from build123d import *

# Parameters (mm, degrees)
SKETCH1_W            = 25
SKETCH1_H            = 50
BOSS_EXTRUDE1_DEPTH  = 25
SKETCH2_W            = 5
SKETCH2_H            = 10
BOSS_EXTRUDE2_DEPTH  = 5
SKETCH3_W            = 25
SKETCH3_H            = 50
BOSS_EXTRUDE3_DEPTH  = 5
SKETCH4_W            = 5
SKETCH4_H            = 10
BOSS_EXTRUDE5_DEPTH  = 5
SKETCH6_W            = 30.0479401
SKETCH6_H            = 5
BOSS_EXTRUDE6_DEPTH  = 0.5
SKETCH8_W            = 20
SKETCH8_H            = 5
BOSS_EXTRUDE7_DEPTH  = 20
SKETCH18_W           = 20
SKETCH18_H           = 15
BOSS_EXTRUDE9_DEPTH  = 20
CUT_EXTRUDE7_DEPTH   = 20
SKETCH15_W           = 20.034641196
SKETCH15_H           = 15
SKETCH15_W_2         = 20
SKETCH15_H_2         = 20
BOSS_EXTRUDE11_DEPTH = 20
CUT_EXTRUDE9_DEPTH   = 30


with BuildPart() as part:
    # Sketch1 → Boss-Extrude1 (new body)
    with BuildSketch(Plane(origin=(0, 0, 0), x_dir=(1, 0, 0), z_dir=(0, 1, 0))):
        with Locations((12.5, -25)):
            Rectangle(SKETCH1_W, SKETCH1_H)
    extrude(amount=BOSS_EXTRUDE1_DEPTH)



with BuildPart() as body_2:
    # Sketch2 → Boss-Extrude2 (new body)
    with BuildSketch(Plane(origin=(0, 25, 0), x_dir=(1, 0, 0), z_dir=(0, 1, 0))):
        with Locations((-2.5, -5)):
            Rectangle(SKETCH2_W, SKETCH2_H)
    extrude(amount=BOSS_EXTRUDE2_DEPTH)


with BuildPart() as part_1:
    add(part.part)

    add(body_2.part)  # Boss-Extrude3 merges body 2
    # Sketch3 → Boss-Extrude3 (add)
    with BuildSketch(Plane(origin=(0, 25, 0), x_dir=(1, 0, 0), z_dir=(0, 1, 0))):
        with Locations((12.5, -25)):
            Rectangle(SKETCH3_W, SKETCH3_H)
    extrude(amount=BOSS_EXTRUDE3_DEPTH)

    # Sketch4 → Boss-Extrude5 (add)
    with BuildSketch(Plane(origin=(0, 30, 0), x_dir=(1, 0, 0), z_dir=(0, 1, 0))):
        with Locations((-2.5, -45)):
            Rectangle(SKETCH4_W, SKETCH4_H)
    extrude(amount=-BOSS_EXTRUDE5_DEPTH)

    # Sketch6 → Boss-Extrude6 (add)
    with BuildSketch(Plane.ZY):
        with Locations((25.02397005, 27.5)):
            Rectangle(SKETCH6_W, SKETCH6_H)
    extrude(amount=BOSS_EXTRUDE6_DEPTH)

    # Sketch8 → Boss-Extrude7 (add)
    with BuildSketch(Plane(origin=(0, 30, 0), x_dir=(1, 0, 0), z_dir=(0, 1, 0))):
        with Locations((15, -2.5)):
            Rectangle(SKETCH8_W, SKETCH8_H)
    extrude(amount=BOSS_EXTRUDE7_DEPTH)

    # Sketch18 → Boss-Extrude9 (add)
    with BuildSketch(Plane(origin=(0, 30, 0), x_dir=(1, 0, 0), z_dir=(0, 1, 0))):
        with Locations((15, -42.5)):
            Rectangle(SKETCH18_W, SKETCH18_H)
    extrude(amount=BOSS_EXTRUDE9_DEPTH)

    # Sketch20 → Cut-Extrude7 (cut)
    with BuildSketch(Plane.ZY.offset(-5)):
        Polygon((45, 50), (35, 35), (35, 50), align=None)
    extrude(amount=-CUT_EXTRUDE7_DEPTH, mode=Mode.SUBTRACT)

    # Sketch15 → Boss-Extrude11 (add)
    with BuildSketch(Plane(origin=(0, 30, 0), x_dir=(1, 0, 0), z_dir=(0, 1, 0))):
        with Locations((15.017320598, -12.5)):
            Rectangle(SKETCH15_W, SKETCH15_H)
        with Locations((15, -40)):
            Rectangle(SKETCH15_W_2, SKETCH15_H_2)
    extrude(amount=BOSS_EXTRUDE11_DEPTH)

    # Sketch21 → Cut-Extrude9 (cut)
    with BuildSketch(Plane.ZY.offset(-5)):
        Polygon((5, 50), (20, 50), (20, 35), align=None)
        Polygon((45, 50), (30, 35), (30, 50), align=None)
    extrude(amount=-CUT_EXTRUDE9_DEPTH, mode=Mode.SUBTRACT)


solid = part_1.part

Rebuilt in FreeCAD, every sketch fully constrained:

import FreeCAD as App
import Part
import Sketcher
from FreeCAD import Vector

doc = App.newDocument("Part")
params = doc.addObject("Spreadsheet::Sheet", "Params")
for row, (alias, value) in enumerate([
    ("sketch1_width", "25 mm"),
    ("sketch1_height", "50 mm"),
    ("pad1_length", "25 mm"),
    ("sketch2_width", "5 mm"),
    ("sketch2_height", "10 mm"),
    ("pad2_length", "5 mm"),
    ("sketch3_width", "25 mm"),
    ("sketch3_height", "50 mm"),
    ("pad3_length", "5 mm"),
    ("sketch4_width", "5 mm"),
    ("sketch4_height", "10 mm"),
    ("pad4_length", "5 mm"),
    ("sketch5_width", "5 mm"),
    ("pad5_length", "0.5 mm"),
    ("sketch6_width", "20 mm"),
    ("sketch6_height", "5 mm"),
    ("pad6_length", "20 mm"),
    ("sketch7_width", "20 mm"),
    ("sketch7_height", "15 mm"),
    ("pad7_length", "20 mm"),
    ("sketch8_width", "15 mm"),
    ("sketch8_height", "10 mm"),
    ("pocket1_length", "20 mm"),
    ("sketch9_width", "20 mm"),
    ("sketch9_height", "15 mm"),
    ("pad8_length", "20 mm"),
    ("sketch10_width", "15 mm"),
    ("pocket2_length", "30 mm"),
], start=1):
    params.set(f"A{row}", alias)
    params.set(f"B{row}", "=" + value)
    params.setAlias(f"B{row}", alias)

body = doc.addObject("PartDesign::Body", "Body")

sketch1 = body.newObject("Sketcher::SketchObject", "Sketch")
sketch1.AttachmentSupport = (doc.getObject("XZ_Plane"), [""])
sketch1.MapMode = "FlatFace"
sketch1.addGeometry([
    Part.LineSegment(Vector(0, 0, 0), Vector(0, 50, 0)),
    Part.LineSegment(Vector(0, 50, 0), Vector(25, 50, 0)),
    Part.LineSegment(Vector(25, 50, 0), Vector(25, 0, 0)),
    Part.LineSegment(Vector(25, 0, 0), Vector(0, 0, 0)),
], False)
sketch1.addConstraint([
    Sketcher.Constraint("Coincident", 0, 2, 1, 1),
    Sketcher.Constraint("Coincident", 1, 2, 2, 1),
    Sketcher.Constraint("Coincident", 2, 2, 3, 1),
    Sketcher.Constraint("Coincident", 3, 2, 0, 1),
    Sketcher.Constraint("Vertical", 0),
    Sketcher.Constraint("Horizontal", 1),
    Sketcher.Constraint("Vertical", 2),
    Sketcher.Constraint("Horizontal", 3),
    Sketcher.Constraint("Coincident", 3, 2, -1, 1),
    Sketcher.Constraint("DistanceX", 1, 1, 1, 2, 25.0),
    Sketcher.Constraint("DistanceY", 0, 1, 0, 2, 50.0),
])
sketch1.setExpression("Constraints[9]", "Params.sketch1_width")
sketch1.setExpression("Constraints[10]", "Params.sketch1_height")
pad1 = body.newObject("PartDesign::Pad", "Pad")
pad1.Profile = sketch1
pad1.setExpression("Length", "Params.pad1_length")
pad1.Reversed = True
body2 = doc.addObject("PartDesign::Body", "Body001")

sketch2 = body2.newObject("Sketcher::SketchObject", "Sketch001")
sketch2.AttachmentSupport = (doc.getObject("XZ_Plane001"), [""])
sketch2.MapMode = "FlatFace"
sketch2.AttachmentOffset = App.Placement(Vector(0, 0, -25), App.Rotation())
sketch2.addGeometry([
    Part.LineSegment(Vector(-5, 0, 0), Vector(-5, 10, 0)),
    Part.LineSegment(Vector(-5, 10, 0), Vector(0, 10, 0)),
    Part.LineSegment(Vector(0, 10, 0), Vector(0, 0, 0)),
    Part.LineSegment(Vector(0, 0, 0), Vector(-5, 0, 0)),
], False)
sketch2.addConstraint([
    Sketcher.Constraint("Coincident", 0, 2, 1, 1),
    Sketcher.Constraint("Coincident", 1, 2, 2, 1),
    Sketcher.Constraint("Coincident", 2, 2, 3, 1),
    Sketcher.Constraint("Coincident", 3, 2, 0, 1),
    Sketcher.Constraint("Vertical", 0),
    Sketcher.Constraint("Horizontal", 1),
    Sketcher.Constraint("Vertical", 2),
    Sketcher.Constraint("Horizontal", 3),
    Sketcher.Constraint("Coincident", 2, 2, -1, 1),
    Sketcher.Constraint("DistanceX", 1, 1, 1, 2, 5.0),
    Sketcher.Constraint("DistanceY", 0, 1, 0, 2, 10.0),
])
sketch2.setExpression("Constraints[9]", "Params.sketch2_width")
sketch2.setExpression("Constraints[10]", "Params.sketch2_height")
pad2 = body2.newObject("PartDesign::Pad", "Pad001")
pad2.Profile = sketch2
pad2.setExpression("Length", "Params.pad2_length")
pad2.Reversed = True
body.AllowCompound = True
doc.recompute()

boolean = body.newObject("PartDesign::Boolean", "Boolean")
boolean.Type = "Fuse"
boolean.addObjects([body2])

sketch3 = body.newObject("Sketcher::SketchObject", "Sketch002")
sketch3.AttachmentSupport = (doc.getObject("XZ_Plane"), [""])
sketch3.MapMode = "FlatFace"
sketch3.AttachmentOffset = App.Placement(Vector(0, 0, -25), App.Rotation())
sketch3.addGeometry([
    Part.LineSegment(Vector(0, 0, 0), Vector(0, 50, 0)),
    Part.LineSegment(Vector(0, 50, 0), Vector(25, 50, 0)),
    Part.LineSegment(Vector(25, 50, 0), Vector(25, 0, 0)),
    Part.LineSegment(Vector(25, 0, 0), Vector(0, 0, 0)),
], False)
sketch3.addConstraint([
    Sketcher.Constraint("Coincident", 0, 2, 1, 1),
    Sketcher.Constraint("Coincident", 1, 2, 2, 1),
    Sketcher.Constraint("Coincident", 2, 2, 3, 1),
    Sketcher.Constraint("Coincident", 3, 2, 0, 1),
    Sketcher.Constraint("Vertical", 0),
    Sketcher.Constraint("Horizontal", 1),
    Sketcher.Constraint("Vertical", 2),
    Sketcher.Constraint("Horizontal", 3),
    Sketcher.Constraint("Coincident", 3, 2, -1, 1),
    Sketcher.Constraint("DistanceX", 1, 1, 1, 2, 25.0),
    Sketcher.Constraint("DistanceY", 0, 1, 0, 2, 50.0),
])
sketch3.setExpression("Constraints[9]", "Params.sketch3_width")
sketch3.setExpression("Constraints[10]", "Params.sketch3_height")
pad3 = body.newObject("PartDesign::Pad", "Pad002")
pad3.Profile = sketch3
pad3.setExpression("Length", "Params.pad3_length")
pad3.Reversed = True

sketch4 = body.newObject("Sketcher::SketchObject", "Sketch003")
sketch4.AttachmentSupport = (doc.getObject("XZ_Plane"), [""])
sketch4.MapMode = "FlatFace"
sketch4.AttachmentOffset = App.Placement(Vector(0, 0, -30), App.Rotation())
sketch4.addGeometry([
    Part.LineSegment(Vector(-5, 40, 0), Vector(-5, 50, 0)),
    Part.LineSegment(Vector(-5, 50, 0), Vector(0, 50, 0)),
    Part.LineSegment(Vector(0, 50, 0), Vector(0, 40, 0)),
    Part.LineSegment(Vector(0, 40, 0), Vector(-5, 40, 0)),
], False)
sketch4.addConstraint([
    Sketcher.Constraint("Coincident", 0, 2, 1, 1),
    Sketcher.Constraint("Coincident", 1, 2, 2, 1),
    Sketcher.Constraint("Coincident", 2, 2, 3, 1),
    Sketcher.Constraint("Coincident", 3, 2, 0, 1),
    Sketcher.Constraint("Vertical", 0),
    Sketcher.Constraint("Horizontal", 1),
    Sketcher.Constraint("Vertical", 2),
    Sketcher.Constraint("Horizontal", 3),
    Sketcher.Constraint("PointOnObject", 1, 2, -2),
    Sketcher.Constraint("DistanceX", 1, 1, 1, 2, 5.0),
    Sketcher.Constraint("DistanceY", 0, 1, 0, 2, 10.0),
    Sketcher.Constraint("DistanceY", -1, 1, 0, 2, 50.0),
])
sketch4.setExpression("Constraints[9]", "Params.sketch4_width")
sketch4.setExpression("Constraints[10]", "Params.sketch4_height")
pad4 = body.newObject("PartDesign::Pad", "Pad003")
pad4.Profile = sketch4
pad4.setExpression("Length", "Params.pad4_length")

sketch5 = body.newObject("Sketcher::SketchObject", "Sketch004")
sketch5.AttachmentSupport = (doc.getObject("YZ_Plane"), [""])
sketch5.MapMode = "FlatFace"
sketch5.addGeometry([
    Part.LineSegment(Vector(30, 10, 0), Vector(25, 10, 0)),
    Part.LineSegment(Vector(25, 10, 0), Vector(25, 40, 0)),
    Part.LineSegment(Vector(25, 40, 0), Vector(30, 40, 0)),
    Part.LineSegment(Vector(30, 40, 0), Vector(30, 10, 0)),
], False)
sketch5.addConstraint([
    Sketcher.Constraint("Coincident", 0, 2, 1, 1),
    Sketcher.Constraint("Coincident", 1, 2, 2, 1),
    Sketcher.Constraint("Coincident", 2, 2, 3, 1),
    Sketcher.Constraint("Coincident", 3, 2, 0, 1),
    Sketcher.Constraint("Horizontal", 0),
    Sketcher.Constraint("Vertical", 1),
    Sketcher.Constraint("Horizontal", 2),
    Sketcher.Constraint("Vertical", 3),
    Sketcher.Constraint("DistanceX", 0, 2, 0, 1, 5.0),
    Sketcher.Constraint("DistanceX", -1, 1, 0, 2, 25.0),
    Sketcher.Constraint("DistanceY", -1, 1, 0, 2, 10.0),
    Sketcher.Constraint("DistanceY", 1, 1, 1, 2, 30.04794),
])
sketch5.setExpression("Constraints[8]", "Params.sketch5_width")
pad5 = body.newObject("PartDesign::Pad", "Pad004")
pad5.Profile = sketch5
pad5.setExpression("Length", "Params.pad5_length")
pad5.Reversed = True

sketch6 = body.newObject("Sketcher::SketchObject", "Sketch005")
sketch6.AttachmentSupport = (doc.getObject("XZ_Plane"), [""])
sketch6.MapMode = "FlatFace"
sketch6.AttachmentOffset = App.Placement(Vector(0, 0, -30), App.Rotation())
sketch6.addGeometry([
    Part.LineSegment(Vector(5, 0, 0), Vector(5, 5, 0)),
    Part.LineSegment(Vector(5, 5, 0), Vector(25, 5, 0)),
    Part.LineSegment(Vector(25, 5, 0), Vector(25, 0, 0)),
    Part.LineSegment(Vector(25, 0, 0), Vector(5, 0, 0)),
], False)
sketch6.addConstraint([
    Sketcher.Constraint("Coincident", 0, 2, 1, 1),
    Sketcher.Constraint("Coincident", 1, 2, 2, 1),
    Sketcher.Constraint("Coincident", 2, 2, 3, 1),
    Sketcher.Constraint("Coincident", 3, 2, 0, 1),
    Sketcher.Constraint("Vertical", 0),
    Sketcher.Constraint("Horizontal", 1),
    Sketcher.Constraint("Vertical", 2),
    Sketcher.Constraint("Horizontal", 3),
    Sketcher.Constraint("PointOnObject", 2, 2, -1),
    Sketcher.Constraint("DistanceX", 1, 1, 1, 2, 20.0),
    Sketcher.Constraint("DistanceY", 0, 1, 0, 2, 5.0),
    Sketcher.Constraint("DistanceX", -1, 1, 0, 2, 5.0),
])
sketch6.setExpression("Constraints[9]", "Params.sketch6_width")
sketch6.setExpression("Constraints[10]", "Params.sketch6_height")
pad6 = body.newObject("PartDesign::Pad", "Pad005")
pad6.Profile = sketch6
pad6.setExpression("Length", "Params.pad6_length")
pad6.Reversed = True

sketch7 = body.newObject("Sketcher::SketchObject", "Sketch006")
sketch7.AttachmentSupport = (doc.getObject("XZ_Plane"), [""])
sketch7.MapMode = "FlatFace"
sketch7.AttachmentOffset = App.Placement(Vector(0, 0, -30), App.Rotation())
sketch7.addGeometry([
    Part.LineSegment(Vector(5, 35, 0), Vector(5, 50, 0)),
    Part.LineSegment(Vector(5, 50, 0), Vector(25, 50, 0)),
    Part.LineSegment(Vector(25, 50, 0), Vector(25, 35, 0)),
    Part.LineSegment(Vector(25, 35, 0), Vector(5, 35, 0)),
], False)
sketch7.addConstraint([
    Sketcher.Constraint("Coincident", 0, 2, 1, 1),
    Sketcher.Constraint("Coincident", 1, 2, 2, 1),
    Sketcher.Constraint("Coincident", 2, 2, 3, 1),
    Sketcher.Constraint("Coincident", 3, 2, 0, 1),
    Sketcher.Constraint("Vertical", 0),
    Sketcher.Constraint("Horizontal", 1),
    Sketcher.Constraint("Vertical", 2),
    Sketcher.Constraint("Horizontal", 3),
    Sketcher.Constraint("DistanceX", 1, 1, 1, 2, 20.0),
    Sketcher.Constraint("DistanceY", 0, 1, 0, 2, 15.0),
    Sketcher.Constraint("DistanceX", -1, 1, 0, 2, 5.0),
    Sketcher.Constraint("DistanceY", -1, 1, 0, 2, 50.0),
])
sketch7.setExpression("Constraints[8]", "Params.sketch7_width")
sketch7.setExpression("Constraints[9]", "Params.sketch7_height")
pad7 = body.newObject("PartDesign::Pad", "Pad006")
pad7.Profile = sketch7
pad7.setExpression("Length", "Params.pad7_length")
pad7.Reversed = True

sketch8 = body.newObject("Sketcher::SketchObject", "Sketch007")
sketch8.AttachmentSupport = (doc.getObject("YZ_Plane"), [""])
sketch8.MapMode = "FlatFace"
sketch8.AttachmentOffset = App.Placement(Vector(0, 0, 5), App.Rotation())
sketch8.addGeometry([
    Part.LineSegment(Vector(35, 35, 0), Vector(50, 45, 0)),
    Part.LineSegment(Vector(50, 45, 0), Vector(50, 35, 0)),
    Part.LineSegment(Vector(50, 35, 0), Vector(35, 35, 0)),
], False)
sketch8.addConstraint([
    Sketcher.Constraint("Coincident", 0, 2, 1, 1),
    Sketcher.Constraint("Coincident", 1, 2, 2, 1),
    Sketcher.Constraint("Coincident", 2, 2, 0, 1),
    Sketcher.Constraint("Vertical", 1),
    Sketcher.Constraint("Horizontal", 2),
    Sketcher.Constraint("DistanceX", 2, 2, 2, 1, 15.0),
    Sketcher.Constraint("DistanceY", 1, 2, 1, 1, 10.0),
    Sketcher.Constraint("DistanceX", -1, 1, 0, 2, 50.0),
    Sketcher.Constraint("DistanceY", -1, 1, 0, 2, 45.0),
])
sketch8.setExpression("Constraints[5]", "Params.sketch8_width")
sketch8.setExpression("Constraints[6]", "Params.sketch8_height")
pocket1 = body.newObject("PartDesign::Pocket", "Pocket")
pocket1.Profile = sketch8
pocket1.setExpression("Length", "Params.pocket1_length")
pocket1.Reversed = True

sketch9 = body.newObject("Sketcher::SketchObject", "Sketch008")
sketch9.AttachmentSupport = (doc.getObject("XZ_Plane"), [""])
sketch9.MapMode = "FlatFace"
sketch9.AttachmentOffset = App.Placement(Vector(0, 0, -30), App.Rotation())
sketch9.addGeometry([
    Part.LineSegment(Vector(5, 5, 0), Vector(5, 20, 0)),
    Part.LineSegment(Vector(5, 20, 0), Vector(25, 20, 0)),
    Part.LineSegment(Vector(25, 20, 0), Vector(25, 5, 0)),
    Part.LineSegment(Vector(25, 5, 0), Vector(5, 5, 0)),
    Part.LineSegment(Vector(5, 30, 0), Vector(5, 50, 0)),
    Part.LineSegment(Vector(5, 50, 0), Vector(25, 50, 0)),
    Part.LineSegment(Vector(25, 50, 0), Vector(25, 30, 0)),
    Part.LineSegment(Vector(25, 30, 0), Vector(5, 30, 0)),
], False)
sketch9.addConstraint([
    Sketcher.Constraint("Coincident", 0, 2, 1, 1),
    Sketcher.Constraint("Coincident", 1, 2, 2, 1),
    Sketcher.Constraint("Coincident", 2, 2, 3, 1),
    Sketcher.Constraint("Coincident", 3, 2, 0, 1),
    Sketcher.Constraint("Coincident", 4, 2, 5, 1),
    Sketcher.Constraint("Coincident", 5, 2, 6, 1),
    Sketcher.Constraint("Coincident", 6, 2, 7, 1),
    Sketcher.Constraint("Coincident", 7, 2, 4, 1),
    Sketcher.Constraint("Vertical", 0),
    Sketcher.Constraint("Horizontal", 1),
    Sketcher.Constraint("Vertical", 2),
    Sketcher.Constraint("Horizontal", 3),
    Sketcher.Constraint("Vertical", 4),
    Sketcher.Constraint("Horizontal", 5),
    Sketcher.Constraint("Vertical", 6),
    Sketcher.Constraint("Horizontal", 7),
    Sketcher.Constraint("Vertical", 3, 2, 4, 2),
    Sketcher.Constraint("Equal", 7, 4),
    Sketcher.Constraint("DistanceX", 5, 1, 5, 2, 20.0),
    Sketcher.Constraint("DistanceY", 0, 1, 0, 2, 15.0),
    Sketcher.Constraint("DistanceX", -1, 1, 0, 2, 5.0),
    Sketcher.Constraint("DistanceY", -1, 1, 0, 2, 20.0),
    Sketcher.Constraint("DistanceY", -1, 1, 4, 2, 50.0),
    Sketcher.Constraint("DistanceX", 1, 1, 1, 2, 20.034641),
])
sketch9.setExpression("Constraints[18]", "Params.sketch9_width")
sketch9.setExpression("Constraints[19]", "Params.sketch9_height")
pad8 = body.newObject("PartDesign::Pad", "Pad007")
pad8.Profile = sketch9
pad8.setExpression("Length", "Params.pad8_length")
pad8.Reversed = True

sketch10 = body.newObject("Sketcher::SketchObject", "Sketch009")
sketch10.AttachmentSupport = (doc.getObject("YZ_Plane"), [""])
sketch10.MapMode = "FlatFace"
sketch10.AttachmentOffset = App.Placement(Vector(0, 0, 5), App.Rotation())
sketch10.addGeometry([
    Part.LineSegment(Vector(50, 20, 0), Vector(50, 5, 0)),
    Part.LineSegment(Vector(50, 5, 0), Vector(35, 20, 0)),
    Part.LineSegment(Vector(35, 20, 0), Vector(50, 20, 0)),
    Part.LineSegment(Vector(35, 30, 0), Vector(50, 45, 0)),
    Part.LineSegment(Vector(50, 45, 0), Vector(50, 30, 0)),
    Part.LineSegment(Vector(50, 30, 0), Vector(35, 30, 0)),
], False)
sketch10.addConstraint([
    Sketcher.Constraint("Coincident", 0, 2, 1, 1),
    Sketcher.Constraint("Coincident", 1, 2, 2, 1),
    Sketcher.Constraint("Coincident", 2, 2, 0, 1),
    Sketcher.Constraint("Coincident", 3, 2, 4, 1),
    Sketcher.Constraint("Coincident", 4, 2, 5, 1),
    Sketcher.Constraint("Coincident", 5, 2, 3, 1),
    Sketcher.Constraint("Vertical", 0),
    Sketcher.Constraint("Horizontal", 2),
    Sketcher.Constraint("Vertical", 4),
    Sketcher.Constraint("Horizontal", 5),
    Sketcher.Constraint("Perpendicular", 1, 3),
    Sketcher.Constraint("Vertical", 2, 2, 3, 2),
    Sketcher.Constraint("Vertical", 1, 2, 5, 2),
    Sketcher.Constraint("Equal", 5, 0),
    Sketcher.Constraint("DistanceX", 2, 1, 2, 2, 15.0),
    Sketcher.Constraint("DistanceX", -1, 1, 0, 2, 50.0),
    Sketcher.Constraint("DistanceY", -1, 1, 0, 2, 5.0),
    Sketcher.Constraint("DistanceY", -1, 1, 3, 2, 45.0),
])
sketch10.setExpression("Constraints[14]", "Params.sketch10_width")
pocket2 = body.newObject("PartDesign::Pocket", "Pocket001")
pocket2.Profile = sketch10
pocket2.setExpression("Length", "Params.pocket2_length")
pocket2.Reversed = True

doc.recompute()
